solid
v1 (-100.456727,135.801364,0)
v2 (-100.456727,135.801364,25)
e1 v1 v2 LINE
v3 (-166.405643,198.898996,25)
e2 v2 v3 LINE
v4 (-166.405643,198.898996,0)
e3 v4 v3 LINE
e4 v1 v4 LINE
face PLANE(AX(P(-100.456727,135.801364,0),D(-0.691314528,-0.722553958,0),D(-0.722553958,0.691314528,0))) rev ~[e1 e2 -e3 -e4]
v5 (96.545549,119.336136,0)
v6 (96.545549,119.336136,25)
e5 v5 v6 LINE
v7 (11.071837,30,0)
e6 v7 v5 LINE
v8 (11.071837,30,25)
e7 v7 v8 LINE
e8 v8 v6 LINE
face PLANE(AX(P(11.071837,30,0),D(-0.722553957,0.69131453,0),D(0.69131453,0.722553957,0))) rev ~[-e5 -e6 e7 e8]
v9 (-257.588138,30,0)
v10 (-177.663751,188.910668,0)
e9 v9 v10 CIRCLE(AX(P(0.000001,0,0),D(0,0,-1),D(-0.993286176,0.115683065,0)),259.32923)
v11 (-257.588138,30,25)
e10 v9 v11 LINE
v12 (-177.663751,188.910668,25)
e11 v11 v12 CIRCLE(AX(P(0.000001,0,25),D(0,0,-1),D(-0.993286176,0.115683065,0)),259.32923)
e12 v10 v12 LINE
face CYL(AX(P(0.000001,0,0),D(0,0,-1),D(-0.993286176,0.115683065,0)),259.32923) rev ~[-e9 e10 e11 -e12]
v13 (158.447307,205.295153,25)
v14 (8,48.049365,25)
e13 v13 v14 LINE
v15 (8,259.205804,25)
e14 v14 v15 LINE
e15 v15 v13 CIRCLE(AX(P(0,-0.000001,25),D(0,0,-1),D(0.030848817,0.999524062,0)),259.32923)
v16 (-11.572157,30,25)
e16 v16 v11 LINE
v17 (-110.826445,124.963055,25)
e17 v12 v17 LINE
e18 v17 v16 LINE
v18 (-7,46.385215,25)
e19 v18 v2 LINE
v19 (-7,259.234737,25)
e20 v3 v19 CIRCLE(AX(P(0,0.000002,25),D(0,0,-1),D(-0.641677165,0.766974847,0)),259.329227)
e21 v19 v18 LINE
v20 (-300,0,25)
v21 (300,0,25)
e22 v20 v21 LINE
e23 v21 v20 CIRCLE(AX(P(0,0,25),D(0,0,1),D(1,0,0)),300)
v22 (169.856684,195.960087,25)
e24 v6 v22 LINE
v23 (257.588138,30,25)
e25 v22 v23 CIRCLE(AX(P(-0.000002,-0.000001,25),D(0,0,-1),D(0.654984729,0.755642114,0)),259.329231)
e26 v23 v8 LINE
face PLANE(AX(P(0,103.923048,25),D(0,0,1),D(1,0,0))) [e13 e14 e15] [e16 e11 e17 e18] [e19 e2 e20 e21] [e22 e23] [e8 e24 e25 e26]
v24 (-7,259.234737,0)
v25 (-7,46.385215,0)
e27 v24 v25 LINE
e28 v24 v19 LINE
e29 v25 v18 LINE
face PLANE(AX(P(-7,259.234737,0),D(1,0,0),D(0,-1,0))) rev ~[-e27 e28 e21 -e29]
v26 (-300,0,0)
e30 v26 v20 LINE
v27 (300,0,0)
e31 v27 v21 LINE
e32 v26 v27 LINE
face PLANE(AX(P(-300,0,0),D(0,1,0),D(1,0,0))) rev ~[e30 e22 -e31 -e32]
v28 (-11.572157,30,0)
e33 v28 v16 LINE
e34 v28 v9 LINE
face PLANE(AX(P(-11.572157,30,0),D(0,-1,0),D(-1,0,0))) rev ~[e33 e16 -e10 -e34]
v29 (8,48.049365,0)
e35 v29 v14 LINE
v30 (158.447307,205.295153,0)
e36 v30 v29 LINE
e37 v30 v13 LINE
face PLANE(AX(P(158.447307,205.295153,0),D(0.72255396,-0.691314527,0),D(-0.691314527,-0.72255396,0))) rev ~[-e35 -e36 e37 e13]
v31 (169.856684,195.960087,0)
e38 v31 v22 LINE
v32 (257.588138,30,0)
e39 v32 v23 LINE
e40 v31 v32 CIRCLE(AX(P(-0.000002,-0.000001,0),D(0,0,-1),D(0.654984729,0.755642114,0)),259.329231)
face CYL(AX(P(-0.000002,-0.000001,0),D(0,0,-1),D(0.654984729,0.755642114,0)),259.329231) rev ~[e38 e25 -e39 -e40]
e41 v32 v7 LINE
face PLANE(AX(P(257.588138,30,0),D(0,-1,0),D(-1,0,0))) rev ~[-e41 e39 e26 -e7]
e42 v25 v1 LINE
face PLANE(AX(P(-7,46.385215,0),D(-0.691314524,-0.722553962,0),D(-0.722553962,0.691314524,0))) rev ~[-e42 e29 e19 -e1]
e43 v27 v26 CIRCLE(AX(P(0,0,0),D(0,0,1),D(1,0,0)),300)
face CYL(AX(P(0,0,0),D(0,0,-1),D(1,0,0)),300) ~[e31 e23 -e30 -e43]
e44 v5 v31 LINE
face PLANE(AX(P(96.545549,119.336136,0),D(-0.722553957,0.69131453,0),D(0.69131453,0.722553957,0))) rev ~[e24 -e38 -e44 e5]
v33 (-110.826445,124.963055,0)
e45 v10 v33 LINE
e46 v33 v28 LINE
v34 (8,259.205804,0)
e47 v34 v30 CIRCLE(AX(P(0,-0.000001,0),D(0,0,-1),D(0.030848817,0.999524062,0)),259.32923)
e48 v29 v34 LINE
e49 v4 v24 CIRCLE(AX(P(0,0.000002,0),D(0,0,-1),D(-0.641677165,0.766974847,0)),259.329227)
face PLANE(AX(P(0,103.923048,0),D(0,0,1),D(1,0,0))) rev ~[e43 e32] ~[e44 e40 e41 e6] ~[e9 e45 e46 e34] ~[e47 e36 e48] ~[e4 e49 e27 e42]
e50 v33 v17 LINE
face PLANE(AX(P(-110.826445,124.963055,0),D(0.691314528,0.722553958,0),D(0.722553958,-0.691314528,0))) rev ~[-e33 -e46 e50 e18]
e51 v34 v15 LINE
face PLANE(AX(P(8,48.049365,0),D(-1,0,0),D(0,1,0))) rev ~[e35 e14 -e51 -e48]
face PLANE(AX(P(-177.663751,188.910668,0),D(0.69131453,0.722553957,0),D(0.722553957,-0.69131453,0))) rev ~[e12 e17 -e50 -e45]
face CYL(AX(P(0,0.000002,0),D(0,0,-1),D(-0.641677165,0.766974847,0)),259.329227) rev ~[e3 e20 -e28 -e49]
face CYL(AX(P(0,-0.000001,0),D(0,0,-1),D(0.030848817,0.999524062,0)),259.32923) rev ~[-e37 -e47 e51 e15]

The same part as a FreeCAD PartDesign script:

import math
import FreeCAD as App
import Part
import Sketcher

V = App.Vector

doc = App.newDocument("Part")
body = doc.addObject("PartDesign::Body", "Body")

sketch1 = doc.addObject("Sketcher::SketchObject", "Sketch")
body.addObject(sketch1)
sketch1.AttachmentSupport = (doc.XY_Plane, [""])
sketch1.MapMode = "FlatFace"
sketch1.addGeometry(Part.LineSegment(V(-300, 0, 0), V(300, 0, 0)), False)
sketch1.addGeometry(Part.ArcOfCircle(Part.Circle(V(0, 0, 0), V(0, 0, 1), 300), math.radians(0), math.radians(180)), False)
sketch1.addGeometry(Part.LineSegment(V(-110.826445, 124.963055, 0), V(-11.572157, 30, 0)), False)
sketch1.addGeometry(Part.LineSegment(V(-11.572157, 30, 0), V(-257.588138, 30, 0)), False)
sketch1.addGeometry(Part.ArcOfCircle(Part.Circle(V(0.000001, 0, 0), V(0, 0, 1), 259.32923), math.radians(133.242652), math.radians(173.356975)), False)
sketch1.addGeometry(Part.LineSegment(V(-177.663751, 188.910668, 0), V(-110.826445, 124.963055, 0)), False)
sketch1.addGeometry(Part.LineSegment(V(96.545549, 119.336136, 0), V(169.856684, 195.960087, 0)), False)
sketch1.addGeometry(Part.ArcOfCircle(Part.Circle(V(-0.000002, -0.000001, 0), V(0, 0, 1), 259.329231), math.radians(6.643025), math.radians(49.081508)), False)
sketch1.addGeometry(Part.LineSegment(V(257.588138, 30, 0), V(11.071837, 30, 0)), False)
sketch1.addGeometry(Part.LineSegment(V(11.071837, 30, 0), V(96.545549, 119.336136, 0)), False)
sketch1.addGeometry(Part.LineSegment(V(-7, 259.234737, 0), V(-7, 46.385215, 0)), False)
sketch1.addGeometry(Part.LineSegment(V(-7, 46.385215, 0), V(-100.456727, 135.801364, 0)), False)
sketch1.addGeometry(Part.LineSegment(V(-100.456727, 135.801364, 0), V(-166.405643, 198.898996, 0)), False)
sketch1.addGeometry(Part.ArcOfCircle(Part.Circle(V(0, 0.000002, 0), V(0, 0, 1), 259.329227), math.radians(91.546757), math.radians(129.916995)), False)
sketch1.addGeometry(Part.ArcOfCircle(Part.Circle(V(0, -0.000001, 0), V(0, 0, 1), 259.32923), math.radians(52.338951), math.radians(88.232212)), False)
sketch1.addGeometry(Part.LineSegment(V(158.447307, 205.295153, 0), V(8, 48.049365, 0)), False)
sketch1.addGeometry(Part.LineSegment(V(8, 48.049365, 0), V(8, 259.205804, 0)), False)
sketch1.addConstraint(Sketcher.Constraint("Coincident", 0, 1, 1, 2))
sketch1.addConstraint(Sketcher.Constraint("Coincident", 1, 1, 0, 2))
sketch1.addConstraint(Sketcher.Constraint("Coincident", 2, 2, 3, 1))
sketch1.addConstraint(Sketcher.Constraint("Coincident", 3, 2, 4, 2))
sketch1.addConstraint(Sketcher.Constraint("Coincident", 4, 1, 5, 1))
sketch1.addConstraint(Sketcher.Constraint("Coincident", 5, 2, 2, 1))
sketch1.addConstraint(Sketcher.Constraint("Coincident", 6, 2, 7, 2))
sketch1.addConstraint(Sketcher.Constraint("Coincident", 7, 1, 8, 1))
sketch1.addConstraint(Sketcher.Constraint("Coincident", 8, 2, 9, 1))
sketch1.addConstraint(Sketcher.Constraint("Coincident", 9, 2, 6, 1))
sketch1.addConstraint(Sketcher.Constraint("Coincident", 10, 2, 11, 1))
sketch1.addConstraint(Sketcher.Constraint("Coincident", 11, 2, 12, 1))
sketch1.addConstraint(Sketcher.Constraint("Coincident", 12, 2, 13, 2))
sketch1.addConstraint(Sketcher.Constraint("Coincident", 13, 1, 10, 1))
sketch1.addConstraint(Sketcher.Constraint("Coincident", 14, 1, 15, 1))
sketch1.addConstraint(Sketcher.Constraint("Coincident", 15, 2, 16, 1))
sketch1.addConstraint(Sketcher.Constraint("Coincident", 16, 2, 14, 2))
sketch1.addConstraint(Sketcher.Constraint("Horizontal", 0))
sketch1.addConstraint(Sketcher.Constraint("Horizontal", 3))
sketch1.addConstraint(Sketcher.Constraint("Horizontal", 8))
sketch1.addConstraint(Sketcher.Constraint("Vertical", 10))
sketch1.addConstraint(Sketcher.Constraint("Vertical", 16))
sketch1.addConstraint(Sketcher.Constraint("Coincident", 1, 3, -1, 1))
sketch1.addConstraint(Sketcher.Constraint("Coincident", 4, 3, -1, 1))
sketch1.addConstraint(Sketcher.Constraint("Coincident", 7, 3, -1, 1))
sketch1.addConstraint(Sketcher.Constraint("Coincident", 13, 3, -1, 1))
sketch1.addConstraint(Sketcher.Constraint("Coincident", 14, 3, -1, 1))
sketch1.addConstraint(Sketcher.Constraint("Equal", 4, 7))
sketch1.addConstraint(Sketcher.Constraint("Equal", 7, 14))
sketch1.addConstraint(Sketcher.Constraint("PointOnObject", 0, 1, -1))
sketch1.addConstraint(Sketcher.Constraint("Parallel", 2, 5))
sketch1.addConstraint(Sketcher.Constraint("Perpendicular", 5, 6))
sketch1.addConstraint(Sketcher.Constraint("Parallel", 6, 9))
sketch1.addConstraint(Sketcher.Constraint("Perpendicular", 9, 11))
sketch1.addConstraint(Sketcher.Constraint("Parallel", 11, 12))
sketch1.addConstraint(Sketcher.Constraint("Perpendicular", 12, 15))
sketch1.addConstraint(Sketcher.Constraint("Horizontal", 3, 2, 7, 1))
sketch1.addConstraint(Sketcher.Constraint("Radius", 1, 300.0))
sketch1.addConstraint(Sketcher.Constraint("DistanceY", -1, 1, 2, 2, 30.0))
sketch1.addConstraint(Sketcher.Constraint("DistanceX", 10, 2, -1, 1, 7.0))
sketch1.addConstraint(Sketcher.Constraint("DistanceX", -1, 1, 15, 2, 8.0))
sketch1.addConstraint(Sketcher.Constraint("Radius", 4, 259.32923))
sketch1.addConstraint(Sketcher.Constraint("DistanceX", 8, 2, 8, 1, 246.516301))
sketch1.addConstraint(Sketcher.Constraint("Radius", 13, 259.329227))
sketch1.addConstraint(Sketcher.Constraint("DistanceX", 3, 2, 3, 1, 246.015981))
sketch1.addConstraint(Sketcher.Constraint("DistanceY", 10, 2, 10, 1, 212.849522))
sketch1.addConstraint(Sketcher.Constraint("DistanceY", 16, 1, 16, 2, 211.156439))
sketch1.addConstraint(Sketcher.Constraint("DistanceY", 9, 2, 13, 1, 139.898601))
sketch1.addConstraint(Sketcher.Constraint("Distance", 2, 137.365918))
sketch1.addConstraint(Sketcher.Constraint("Distance", 6, 106.045992))
sketch1.addConstraint(Sketcher.Constraint("Distance", 11, 129.342211))
pad1 = doc.addObject("PartDesign::Pad", "Pad")
body.addObject(pad1)
pad1.Profile = sketch1
pad1.Length = 25

doc.recompute()
